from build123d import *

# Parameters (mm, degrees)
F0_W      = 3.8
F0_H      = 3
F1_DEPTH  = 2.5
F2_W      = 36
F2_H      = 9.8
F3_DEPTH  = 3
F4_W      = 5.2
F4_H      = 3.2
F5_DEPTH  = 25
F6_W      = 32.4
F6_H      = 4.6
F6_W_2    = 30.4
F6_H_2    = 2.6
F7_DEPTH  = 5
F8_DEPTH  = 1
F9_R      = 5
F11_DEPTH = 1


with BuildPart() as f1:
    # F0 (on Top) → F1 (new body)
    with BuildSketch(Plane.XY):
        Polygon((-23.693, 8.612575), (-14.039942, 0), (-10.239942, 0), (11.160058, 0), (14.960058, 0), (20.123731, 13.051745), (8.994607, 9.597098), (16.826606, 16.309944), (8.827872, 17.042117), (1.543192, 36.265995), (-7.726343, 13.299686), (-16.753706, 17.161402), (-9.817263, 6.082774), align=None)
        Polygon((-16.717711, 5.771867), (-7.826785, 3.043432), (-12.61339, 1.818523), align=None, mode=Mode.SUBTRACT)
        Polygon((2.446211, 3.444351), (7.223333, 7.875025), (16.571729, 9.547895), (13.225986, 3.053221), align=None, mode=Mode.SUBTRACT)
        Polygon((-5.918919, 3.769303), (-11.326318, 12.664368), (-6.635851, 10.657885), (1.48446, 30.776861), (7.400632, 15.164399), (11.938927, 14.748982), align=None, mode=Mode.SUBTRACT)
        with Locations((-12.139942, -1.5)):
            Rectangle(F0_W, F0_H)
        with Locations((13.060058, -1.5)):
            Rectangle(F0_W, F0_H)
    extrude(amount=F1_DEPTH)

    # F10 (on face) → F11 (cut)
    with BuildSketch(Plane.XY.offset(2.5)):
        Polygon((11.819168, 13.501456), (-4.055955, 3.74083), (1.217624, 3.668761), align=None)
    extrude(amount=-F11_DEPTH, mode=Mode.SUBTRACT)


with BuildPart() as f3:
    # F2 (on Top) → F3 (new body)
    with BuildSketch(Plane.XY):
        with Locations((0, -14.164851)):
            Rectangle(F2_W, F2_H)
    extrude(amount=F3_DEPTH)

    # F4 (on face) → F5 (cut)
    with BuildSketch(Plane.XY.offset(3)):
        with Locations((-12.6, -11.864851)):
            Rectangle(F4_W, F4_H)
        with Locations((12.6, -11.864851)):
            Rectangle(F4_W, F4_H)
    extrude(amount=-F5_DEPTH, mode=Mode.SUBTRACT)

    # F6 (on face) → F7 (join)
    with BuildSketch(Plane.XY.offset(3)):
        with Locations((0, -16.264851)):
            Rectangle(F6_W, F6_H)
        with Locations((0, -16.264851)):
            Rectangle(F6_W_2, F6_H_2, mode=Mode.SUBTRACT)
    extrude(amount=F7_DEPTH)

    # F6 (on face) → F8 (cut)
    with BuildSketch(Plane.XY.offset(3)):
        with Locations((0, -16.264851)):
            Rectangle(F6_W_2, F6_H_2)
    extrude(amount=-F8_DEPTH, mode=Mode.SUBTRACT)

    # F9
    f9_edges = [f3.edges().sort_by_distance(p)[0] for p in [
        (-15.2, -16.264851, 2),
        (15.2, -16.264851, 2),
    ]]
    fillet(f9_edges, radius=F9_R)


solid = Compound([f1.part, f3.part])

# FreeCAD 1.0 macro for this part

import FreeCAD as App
import Part
import Sketcher

V = App.Vector
Q = App.Units.Quantity


def edges_at(feature, points):
    """Names of the edges that pass closest to the given points."""
    edges = feature.Shape.Edges
    near = lambda p: min(range(len(edges)), key=lambda i: edges[i].distToShape(Part.Vertex(*p))[0])
    return sorted({f"Edge{near(p) + 1}" for p in points})

doc = App.newDocument("Part")
body = doc.addObject("PartDesign::Body", "Body")

sketch1 = doc.addObject("Sketcher::SketchObject", "Sketch")
body.addObject(sketch1)
sketch1.AttachmentSupport = (doc.XY_Plane, [""])
sketch1.MapMode = "FlatFace"
sketch1.addGeometry([
    Part.LineSegment(V(-23.693, 8.612575, 0), V(-14.039942, 0, 0)),
    Part.LineSegment(V(-14.039942, 0, 0), V(-14.039942, -3, 0)),
    Part.LineSegment(V(-14.039942, -3, 0), V(-10.239942, -3, 0)),
    Part.LineSegment(V(-10.239942, -3, 0), V(-10.239942, 0, 0)),
    Part.LineSegment(V(-10.239942, 0, 0), V(11.160058, 0, 0)),
    Part.LineSegment(V(11.160058, 0, 0), V(11.160058, -3, 0)),
    Part.LineSegment(V(11.160058, -3, 0), V(14.960058, -3, 0)),
    Part.LineSegment(V(14.960058, -3, 0), V(14.960058, 0, 0)),
    Part.LineSegment(V(14.960058, 0, 0), V(20.123731, 13.051745, 0)),
    Part.LineSegment(V(20.123731, 13.051745, 0), V(8.994607, 9.597098, 0)),
    Part.LineSegment(V(8.994607, 9.597098, 0), V(16.826606, 16.309944, 0)),
    Part.LineSegment(V(16.826606, 16.309944, 0), V(8.827872, 17.042117, 0)),
    Part.LineSegment(V(8.827872, 17.042117, 0), V(1.543192, 36.265995, 0)),
    Part.LineSegment(V(1.543192, 36.265995, 0), V(-7.726343, 13.299686, 0)),
    Part.LineSegment(V(-7.726343, 13.299686, 0), V(-16.753706, 17.161402, 0)),
    Part.LineSegment(V(-16.753706, 17.161402, 0), V(-9.817263, 6.082774, 0)),
    Part.LineSegment(V(-9.817263, 6.082774, 0), V(-23.693, 8.612575, 0)),
    Part.LineSegment(V(-12.61339, 1.818523, 0), V(-16.717711, 5.771867, 0)),
    Part.LineSegment(V(-16.717711, 5.771867, 0), V(-7.826785, 3.043432, 0)),
    Part.LineSegment(V(-7.826785, 3.043432, 0), V(-12.61339, 1.818523, 0)),
    Part.LineSegment(V(13.225986, 3.053221, 0), V(2.446211, 3.444351, 0)),
    Part.LineSegment(V(2.446211, 3.444351, 0), V(7.223333, 7.875025, 0)),
    Part.LineSegment(V(7.223333, 7.875025, 0), V(16.571729, 9.547895, 0)),
    Part.LineSegment(V(16.571729, 9.547895, 0), V(13.225986, 3.053221, 0)),
    Part.LineSegment(V(11.938927, 14.748982, 0), V(-5.918919, 3.769303, 0)),
    Part.LineSegment(V(-5.918919, 3.769303, 0), V(-11.326318, 12.664368, 0)),
    Part.LineSegment(V(-11.326318, 12.664368, 0), V(-6.635851, 10.657885, 0)),
    Part.LineSegment(V(-6.635851, 10.657885, 0), V(1.48446, 30.776861, 0)),
    Part.LineSegment(V(1.48446, 30.776861, 0), V(7.400632, 15.164399, 0)),
    Part.LineSegment(V(7.400632, 15.164399, 0), V(11.938927, 14.748982, 0)),
], False)
sketch1.addConstraint([
    Sketcher.Constraint("Coincident", 0, 2, 1, 1),
    Sketcher.Constraint("Coincident", 1, 2, 2, 1),
    Sketcher.Constraint("Coincident", 2, 2, 3, 1),
    Sketcher.Constraint("Coincident", 3, 2, 4, 1),
    Sketcher.Constraint("Coincident", 4, 2, 5, 1),
    Sketcher.Constraint("Coincident", 5, 2, 6, 1),
    Sketcher.Constraint("Coincident", 6, 2, 7, 1),
    Sketcher.Constraint("Coincident", 7, 2, 8, 1),
    Sketcher.Constraint("Coincident", 8, 2, 9, 1),
    Sketcher.Constraint("Coincident", 9, 2, 10, 1),
    Sketcher.Constraint("Coincident", 10, 2, 11, 1),
    Sketcher.Constraint("Coincident", 11, 2, 12, 1),
    Sketcher.Constraint("Coincident", 12, 2, 13, 1),
    Sketcher.Constraint("Coincident", 13, 2, 14, 1),
    Sketcher.Constraint("Coincident", 14, 2, 15, 1),
    Sketcher.Constraint("Coincident", 15, 2, 16, 1),
    Sketcher.Constraint("Coincident", 16, 2, 0, 1),
    Sketcher.Constraint("Coincident", 17, 2, 18, 1),
    Sketcher.Constraint("Coincident", 18, 2, 19, 1),
    Sketcher.Constraint("Coincident", 19, 2, 17, 1),
    Sketcher.Constraint("Coincident", 20, 2, 21, 1),
    Sketcher.Constraint("Coincident", 21, 2, 22, 1),
    Sketcher.Constraint("Coincident", 22, 2, 23, 1),
    Sketcher.Constraint("Coincident", 23, 2, 20, 1),
    Sketcher.Constraint("Coincident", 24, 2, 25, 1),
    Sketcher.Constraint("Coincident", 25, 2, 26, 1),
    Sketcher.Constraint("Coincident", 26, 2, 27, 1),
    Sketcher.Constraint("Coincident", 27, 2, 28, 1),
    Sketcher.Constraint("Coincident", 28, 2, 29, 1),
    Sketcher.Constraint("Coincident", 29, 2, 24, 1),
    Sketcher.Constraint("Vertical", 1),
    Sketcher.Constraint("Horizontal", 2),
    Sketcher.Constraint("Vertical", 3),
    Sketcher.Constraint("Horizontal", 4),
    Sketcher.Constraint("Vertical", 5),
    Sketcher.Constraint("Horizontal", 6),
    Sketcher.Constraint("Vertical", 7),
    Sketcher.Constraint("PointOnObject", 0, 2, -1),
    Sketcher.Constraint("PointOnObject", 3, 2, -1),
    Sketcher.Constraint("PointOnObject", 7, 2, -1),
    Sketcher.Constraint("Parallel", 14, 26),
    Sketcher.Constraint("Parallel", 13, 27),
    Sketcher.Constraint("Parallel", 12, 28),
    Sketcher.Constraint("Parallel", 11, 29),
    Sketcher.Constraint("Horizontal", 2, 2, 5, 2),
    Sketcher.Constraint("Equal", 2, 6),
    Sketcher.Constraint("DistanceY", 1, 2, 1, 1, Q("3 mm")),
    Sketcher.Constraint("DistanceX", 2, 1, 2, 2, Q("3.8 mm")),
    Sketcher.Constraint("DistanceX", 4, 1, 4, 2, Q("21.4 mm")),
    Sketcher.Constraint("DistanceX", 16, 2, -1, 1, Q("23.693 mm")),
    Sketcher.Constraint("DistanceX", 9, 2, 10, 2, Q("7.831999 mm")),
    Sketcher.Constraint("DistanceX", 22, 2, 8, 2, Q("3.552002 mm")),
    Sketcher.Constraint("DistanceY", -1, 1, 9, 2, Q("9.597098 mm")),
    Sketcher.Constraint("DistanceY", -1, 1, 14, 2, Q("17.161402 mm")),
    Sketcher.Constraint("DistanceY", -1, 1, 28, 2, Q("15.164399 mm")),
    Sketcher.Constraint("DistanceY", 8, 2, 10, 2, Q("3.258199 mm")),
    Sketcher.Constraint("DistanceX", 3, 2, 13, 2, Q("2.513599 mm")),
    Sketcher.Constraint("DistanceY", 15, 2, 16, 2, Q("2.529801 mm")),
    Sketcher.Constraint("DistanceY", 17, 2, 25, 2, Q("6.892501 mm")),
    Sketcher.Constraint("DistanceY", 26, 2, 13, 2, Q("2.641801 mm")),
    Sketcher.Constraint("DistanceX", 21, 2, 28, 2, Q("0.177299 mm")),
    Sketcher.Constraint("Distance", 0, Q("12.936691 mm")),
    Sketcher.Constraint("Distance", 8, Q("14.036081 mm")),
    Sketcher.Constraint("Distance", 9, Q("11.652982 mm")),
    Sketcher.Constraint("Distance", 10, Q("10.315159 mm")),
    Sketcher.Constraint("Distance", 13, Q("24.766421 mm")),
    Sketcher.Constraint("Distance", 15, Q("13.070969 mm")),
    Sketcher.Constraint("Distance", 17, Q("5.69863 mm")),
    Sketcher.Constraint("Distance", 19, Q("4.940849 mm")),
    Sketcher.Constraint("Distance", 20, Q("10.786868 mm")),
    Sketcher.Constraint("Distance", 28, Q("16.69581 mm")),
    Sketcher.Constraint("Distance", 29, Q("4.557268 mm")),
    Sketcher.Constraint("DistanceX", 2, 2, -1, 1, Q("10.239942 mm")),
    Sketcher.Constraint("DistanceX", -1, 1, 11, 2, Q("8.827872 mm")),
    Sketcher.Constraint("DistanceX", -1, 1, 12, 2, Q("1.543192 mm")),
    Sketcher.Constraint("DistanceX", 17, 2, -1, 1, Q("16.717711 mm")),
    Sketcher.Constraint("DistanceX", 19, 2, -1, 1, Q("12.61339 mm")),
    Sketcher.Constraint("DistanceX", -1, 1, 20, 2, Q("2.446211 mm")),
    Sketcher.Constraint("DistanceY", -1, 1, 20, 2, Q("3.444351 mm")),
    Sketcher.Constraint("DistanceY", -1, 1, 23, 2, Q("3.053221 mm")),
    Sketcher.Constraint("DistanceX", 24, 2, -1, 1, Q("5.918919 mm")),
    Sketcher.Constraint("DistanceX", 26, 2, -1, 1, Q("6.635851 mm")),
    Sketcher.Constraint("DistanceX", -1, 1, 27, 2, Q("1.48446 mm")),
    Sketcher.Constraint("DistanceY", -1, 1, 27, 2, Q("30.776861 mm")),
    Sketcher.Constraint("DistanceX", 3, 2, 15, 2, Q("0.422679 mm")),
    Sketcher.Constraint("DistanceX", 15, 2, 18, 2, Q("1.990478 mm")),
    Sketcher.Constraint("DistanceY", 18, 2, 15, 2, Q("3.039342 mm")),
    Sketcher.Constraint("DistanceY", 22, 2, 8, 2, Q("3.50385 mm")),
    Sketcher.Constraint("DistanceY", 21, 2, 22, 2, Q("1.67287 mm")),
    Sketcher.Constraint("DistanceY", 18, 2, 24, 2, Q("0.725871 mm")),
])
pad1 = doc.addObject("PartDesign::Pad", "Pad")
body.addObject(pad1)
pad1.Profile = sketch1
pad1.Length = 2.5

sketch2 = doc.addObject("Sketcher::SketchObject", "Sketch001")
body.addObject(sketch2)
sketch2.AttachmentSupport = (doc.XY_Plane, [""])
sketch2.MapMode = "FlatFace"
sketch2.AttachmentOffset = App.Placement(V(0, 0, 2.5), App.Rotation())
sketch2.addGeometry([
    Part.LineSegment(V(11.819168, 13.501456, 0), V(-4.055955, 3.74083, 0)),
    Part.LineSegment(V(-4.055955, 3.74083, 0), V(1.217624, 3.668761, 0)),
    Part.LineSegment(V(1.217624, 3.668761, 0), V(11.819168, 13.501456, 0)),
], False)
sketch2.addConstraint([
    Sketcher.Constraint("Coincident", 0, 2, 1, 1),
    Sketcher.Constraint("Coincident", 1, 2, 2, 1),
    Sketcher.Constraint("Coincident", 2, 2, 0, 1),
    Sketcher.Constraint("Distance", 0, Q("18.635701 mm")),
    Sketcher.Constraint("Distance", 1, Q("5.274071 mm")),
    Sketcher.Constraint("DistanceY", -1, 1, 0, 2, Q("3.74083 mm")),
    Sketcher.Constraint("DistanceY", -1, 1, 1, 2, Q("3.668761 mm")),
    Sketcher.Constraint("Distance", 2, Q("14.459413 mm")),
    Sketcher.Constraint("DistanceX", 0, 2, -1, 1, Q("4.055955 mm")),
])
pocket1 = doc.addObject("PartDesign::Pocket", "Pocket")
body.addObject(pocket1)
pocket1.Profile = sketch2
pocket1.Length = 1
body2 = doc.addObject("PartDesign::Body", "Body001")

sketch3 = doc.addObject("Sketcher::SketchObject", "Sketch002")
body2.addObject(sketch3)
sketch3.AttachmentSupport = (doc.getObject("XY_Plane001"), [""])
sketch3.MapMode = "FlatFace"
sketch3.addGeometry([
    Part.LineSegment(V(-18, -9.264851, 0), V(-18, -19.064851, 0)),
    Part.LineSegment(V(-18, -19.064851, 0), V(18, -19.064851, 0)),
    Part.LineSegment(V(18, -19.064851, 0), V(18, -9.264851, 0)),
    Part.LineSegment(V(18, -9.264851, 0), V(-18, -9.264851, 0)),
], False)
sketch3.addConstraint([
    Sketcher.Constraint("Coincident", 0, 2, 1, 1),
    Sketcher.Constraint("Coincident", 1, 2, 2, 1),
    Sketcher.Constraint("Coincident", 2, 2, 3, 1),
    Sketcher.Constraint("Coincident", 3, 2, 0, 1),
    Sketcher.Constraint("Vertical", 0),
    Sketcher.Constraint("Horizontal", 1),
    Sketcher.Constraint("Vertical", 2),
    Sketcher.Constraint("Horizontal", 3),
    Sketcher.Constraint("DistanceX", 1, 1, 1, 2, Q("36 mm")),
    Sketcher.Constraint("DistanceY", 0, 2, 0, 1, Q("9.8 mm")),
    Sketcher.Constraint("DistanceX", 0, 2, -1, 1, Q("18 mm")),
    Sketcher.Constraint("DistanceY", 0, 2, -1, 1, Q("19.064851 mm")),
])
pad2 = doc.addObject("PartDesign::Pad", "Pad001")
body2.addObject(pad2)
pad2.Profile = sketch3
pad2.Length = 3

sketch4 = doc.addObject("Sketcher::SketchObject", "Sketch003")
body2.addObject(sketch4)
sketch4.AttachmentSupport = (doc.getObject("XY_Plane001"), [""])
sketch4.MapMode = "FlatFace"
sketch4.AttachmentOffset = App.Placement(V(0, 0, 3), App.Rotation())
sketch4.addGeometry([
    Part.LineSegment(V(-15.2, -10.264851, 0), V(-15.2, -13.464851, 0)),
    Part.LineSegment(V(-15.2, -13.464851, 0), V(-10, -13.464851, 0)),
    Part.LineSegment(V(-10, -13.464851, 0), V(-10, -10.264851, 0)),
    Part.LineSegment(V(-10, -10.264851, 0), V(-15.2, -10.264851, 0)),
    Part.LineSegment(V(10, -10.264851, 0), V(10, -13.464851, 0)),
    Part.LineSegment(V(10, -13.464851, 0), V(15.2, -13.464851, 0)),
    Part.LineSegment(V(15.2, -13.464851, 0), V(15.2, -10.264851, 0)),
    Part.LineSegment(V(15.2, -10.264851, 0), V(10, -10.264851, 0)),
], False)
sketch4.addConstraint([
    Sketcher.Constraint("Coincident", 0, 2, 1, 1),
    Sketcher.Constraint("Coincident", 1, 2, 2, 1),
    Sketcher.Constraint("Coincident", 2, 2, 3, 1),
    Sketcher.Constraint("Coincident", 3, 2, 0, 1),
    Sketcher.Constraint("Coincident", 4, 2, 5, 1),
    Sketcher.Constraint("Coincident", 5, 2, 6, 1),
    Sketcher.Constraint("Coincident", 6, 2, 7, 1),
    Sketcher.Constraint("Coincident", 7, 2, 4, 1),
    Sketcher.Constraint("Vertical", 0),
    Sketcher.Constraint("Horizontal", 1),
    Sketcher.Constraint("Vertical", 2),
    Sketcher.Constraint("Horizontal", 3),
    Sketcher.Constraint("Vertical", 4),
    Sketcher.Constraint("Horizontal", 5),
    Sketcher.Constraint("Vertical", 6),
    Sketcher.Constraint("Horizontal", 7),
    Sketcher.Constraint("Symmetric", 1, 2, 4, 2, -2),
    Sketcher.Constraint("Symmetric", 3, 2, 6, 2, -2),
    Sketcher.Constraint("DistanceX", 1, 1, 1, 2, Q("5.2 mm")),
    Sketcher.Constraint("DistanceY", 0, 2, 0, 1, Q("3.2 mm")),
    Sketcher.Constraint("DistanceX", 1, 2, -1, 1, Q("10 mm")),
    Sketcher.Constraint("DistanceY", 0, 2, -1, 1, Q("13.464851 mm")),
])
pocket2 = doc.addObject("PartDesign::Pocket", "Pocket001")
body2.addObject(pocket2)
pocket2.Profile = sketch4
pocket2.Length = 25

sketch5 = doc.addObject("Sketcher::SketchObject", "Sketch004")
body2.addObject(sketch5)
sketch5.AttachmentSupport = (doc.getObject("XY_Plane001"), [""])
sketch5.MapMode = "FlatFace"
sketch5.AttachmentOffset = App.Placement(V(0, 0, 3), App.Rotation())
sketch5.addGeometry([
    Part.LineSegment(V(-16.2, -13.964851, 0), V(-16.2, -18.564851, 0)),
    Part.LineSegment(V(-16.2, -18.564851, 0), V(16.2, -18.564851, 0)),
    Part.LineSegment(V(16.2, -18.564851, 0), V(16.2, -13.964851, 0)),
    Part.LineSegment(V(16.2, -13.964851, 0), V(-16.2, -13.964851, 0)),
    Part.LineSegment(V(15.2, -17.564851, 0), V(-15.2, -17.564851, 0)),
    Part.LineSegment(V(-15.2, -17.564851, 0), V(-15.2, -14.964851, 0)),
    Part.LineSegment(V(-15.2, -14.964851, 0), V(15.2, -14.964851, 0)),
    Part.LineSegment(V(15.2, -14.964851, 0), V(15.2, -17.564851, 0)),
], False)
sketch5.addConstraint([
    Sketcher.Constraint("Coincident", 0, 2, 1, 1),
    Sketcher.Constraint("Coincident", 1, 2, 2, 1),
    Sketcher.Constraint("Coincident", 2, 2, 3, 1),
    Sketcher.Constraint("Coincident", 3, 2, 0, 1),
    Sketcher.Constraint("Coincident", 4, 2, 5, 1),
    Sketcher.Constraint("Coincident", 5, 2, 6, 1),
    Sketcher.Constraint("Coincident", 6, 2, 7, 1),
    Sketcher.Constraint("Coincident", 7, 2, 4, 1),
    Sketcher.Constraint("Vertical", 0),
    Sketcher.Constraint("Horizontal", 1),
    Sketcher.Constraint("Vertical", 2),
    Sketcher.Constraint("Horizontal", 3),
    Sketcher.Constraint("Horizontal", 4),
    Sketcher.Constraint("Vertical", 5),
    Sketcher.Constraint("Horizontal", 6),
    Sketcher.Constraint("Vertical", 7),
    Sketcher.Constraint("DistanceX", 1, 1, 1, 2, Q("32.4 mm")),
    Sketcher.Constraint("DistanceX", 4, 2, 4, 1, Q("30.4 mm")),
    Sketcher.Constraint("DistanceY", 0, 2, 0, 1, Q("4.6 mm")),
    Sketcher.Constraint("DistanceY", 5, 1, 5, 2, Q("2.6 mm")),
    Sketcher.Constraint("DistanceX", 0, 2, 4, 2, Q("1 mm")),
    Sketcher.Constraint("DistanceY", 0, 2, 4, 2, Q("1 mm")),
    Sketcher.Constraint("DistanceX", 0, 2, -1, 1, Q("16.2 mm")),
    Sketcher.Constraint("DistanceY", 0, 2, -1, 1, Q("18.564851 mm")),
])
pad3 = doc.addObject("PartDesign::Pad", "Pad002")
body2.addObject(pad3)
pad3.Profile = sketch5
pad3.Length = 5

sketch6 = doc.addObject("Sketcher::SketchObject", "Sketch005")
body2.addObject(sketch6)
sketch6.AttachmentSupport = (doc.getObject("XY_Plane001"), [""])
sketch6.MapMode = "FlatFace"
sketch6.AttachmentOffset = App.Placement(V(0, 0, 3), App.Rotation())
sketch6.addGeometry([
    Part.LineSegment(V(-15.2, -14.964851, 0), V(-15.2, -17.564851, 0)),
    Part.LineSegment(V(-15.2, -17.564851, 0), V(15.2, -17.564851, 0)),
    Part.LineSegment(V(15.2, -17.564851, 0), V(15.2, -14.964851, 0)),
    Part.LineSegment(V(15.2, -14.964851, 0), V(-15.2, -14.964851, 0)),
], False)
sketch6.addConstraint([
    Sketcher.Constraint("Coincident", 0, 2, 1, 1),
    Sketcher.Constraint("Coincident", 1, 2, 2, 1),
    Sketcher.Constraint("Coincident", 2, 2, 3, 1),
    Sketcher.Constraint("Coincident", 3, 2, 0, 1),
    Sketcher.Constraint("Vertical", 0),
    Sketcher.Constraint("Horizontal", 1),
    Sketcher.Constraint("Vertical", 2),
    Sketcher.Constraint("Horizontal", 3),
    Sketcher.Constraint("DistanceX", 1, 1, 1, 2, Q("30.4 mm")),
    Sketcher.Constraint("DistanceY", 0, 2, 0, 1, Q("2.6 mm")),
    Sketcher.Constraint("DistanceX", 0, 2, -1, 1, Q("15.2 mm")),
    Sketcher.Constraint("DistanceY", 0, 2, -1, 1, Q("17.564851 mm")),
])
pocket3 = doc.addObject("PartDesign::Pocket", "Pocket002")
body2.addObject(pocket3)
pocket3.Profile = sketch6
pocket3.Length = 1
doc.recompute()

fillet = doc.addObject("PartDesign::Fillet", "Fillet")
body2.addObject(fillet)
fillet.Base = (pocket3, edges_at(pocket3, [(-15.2, -16.265, 2), (15.2, -16.265, 2)]))
fillet.Radius = 5

doc.recompute()
